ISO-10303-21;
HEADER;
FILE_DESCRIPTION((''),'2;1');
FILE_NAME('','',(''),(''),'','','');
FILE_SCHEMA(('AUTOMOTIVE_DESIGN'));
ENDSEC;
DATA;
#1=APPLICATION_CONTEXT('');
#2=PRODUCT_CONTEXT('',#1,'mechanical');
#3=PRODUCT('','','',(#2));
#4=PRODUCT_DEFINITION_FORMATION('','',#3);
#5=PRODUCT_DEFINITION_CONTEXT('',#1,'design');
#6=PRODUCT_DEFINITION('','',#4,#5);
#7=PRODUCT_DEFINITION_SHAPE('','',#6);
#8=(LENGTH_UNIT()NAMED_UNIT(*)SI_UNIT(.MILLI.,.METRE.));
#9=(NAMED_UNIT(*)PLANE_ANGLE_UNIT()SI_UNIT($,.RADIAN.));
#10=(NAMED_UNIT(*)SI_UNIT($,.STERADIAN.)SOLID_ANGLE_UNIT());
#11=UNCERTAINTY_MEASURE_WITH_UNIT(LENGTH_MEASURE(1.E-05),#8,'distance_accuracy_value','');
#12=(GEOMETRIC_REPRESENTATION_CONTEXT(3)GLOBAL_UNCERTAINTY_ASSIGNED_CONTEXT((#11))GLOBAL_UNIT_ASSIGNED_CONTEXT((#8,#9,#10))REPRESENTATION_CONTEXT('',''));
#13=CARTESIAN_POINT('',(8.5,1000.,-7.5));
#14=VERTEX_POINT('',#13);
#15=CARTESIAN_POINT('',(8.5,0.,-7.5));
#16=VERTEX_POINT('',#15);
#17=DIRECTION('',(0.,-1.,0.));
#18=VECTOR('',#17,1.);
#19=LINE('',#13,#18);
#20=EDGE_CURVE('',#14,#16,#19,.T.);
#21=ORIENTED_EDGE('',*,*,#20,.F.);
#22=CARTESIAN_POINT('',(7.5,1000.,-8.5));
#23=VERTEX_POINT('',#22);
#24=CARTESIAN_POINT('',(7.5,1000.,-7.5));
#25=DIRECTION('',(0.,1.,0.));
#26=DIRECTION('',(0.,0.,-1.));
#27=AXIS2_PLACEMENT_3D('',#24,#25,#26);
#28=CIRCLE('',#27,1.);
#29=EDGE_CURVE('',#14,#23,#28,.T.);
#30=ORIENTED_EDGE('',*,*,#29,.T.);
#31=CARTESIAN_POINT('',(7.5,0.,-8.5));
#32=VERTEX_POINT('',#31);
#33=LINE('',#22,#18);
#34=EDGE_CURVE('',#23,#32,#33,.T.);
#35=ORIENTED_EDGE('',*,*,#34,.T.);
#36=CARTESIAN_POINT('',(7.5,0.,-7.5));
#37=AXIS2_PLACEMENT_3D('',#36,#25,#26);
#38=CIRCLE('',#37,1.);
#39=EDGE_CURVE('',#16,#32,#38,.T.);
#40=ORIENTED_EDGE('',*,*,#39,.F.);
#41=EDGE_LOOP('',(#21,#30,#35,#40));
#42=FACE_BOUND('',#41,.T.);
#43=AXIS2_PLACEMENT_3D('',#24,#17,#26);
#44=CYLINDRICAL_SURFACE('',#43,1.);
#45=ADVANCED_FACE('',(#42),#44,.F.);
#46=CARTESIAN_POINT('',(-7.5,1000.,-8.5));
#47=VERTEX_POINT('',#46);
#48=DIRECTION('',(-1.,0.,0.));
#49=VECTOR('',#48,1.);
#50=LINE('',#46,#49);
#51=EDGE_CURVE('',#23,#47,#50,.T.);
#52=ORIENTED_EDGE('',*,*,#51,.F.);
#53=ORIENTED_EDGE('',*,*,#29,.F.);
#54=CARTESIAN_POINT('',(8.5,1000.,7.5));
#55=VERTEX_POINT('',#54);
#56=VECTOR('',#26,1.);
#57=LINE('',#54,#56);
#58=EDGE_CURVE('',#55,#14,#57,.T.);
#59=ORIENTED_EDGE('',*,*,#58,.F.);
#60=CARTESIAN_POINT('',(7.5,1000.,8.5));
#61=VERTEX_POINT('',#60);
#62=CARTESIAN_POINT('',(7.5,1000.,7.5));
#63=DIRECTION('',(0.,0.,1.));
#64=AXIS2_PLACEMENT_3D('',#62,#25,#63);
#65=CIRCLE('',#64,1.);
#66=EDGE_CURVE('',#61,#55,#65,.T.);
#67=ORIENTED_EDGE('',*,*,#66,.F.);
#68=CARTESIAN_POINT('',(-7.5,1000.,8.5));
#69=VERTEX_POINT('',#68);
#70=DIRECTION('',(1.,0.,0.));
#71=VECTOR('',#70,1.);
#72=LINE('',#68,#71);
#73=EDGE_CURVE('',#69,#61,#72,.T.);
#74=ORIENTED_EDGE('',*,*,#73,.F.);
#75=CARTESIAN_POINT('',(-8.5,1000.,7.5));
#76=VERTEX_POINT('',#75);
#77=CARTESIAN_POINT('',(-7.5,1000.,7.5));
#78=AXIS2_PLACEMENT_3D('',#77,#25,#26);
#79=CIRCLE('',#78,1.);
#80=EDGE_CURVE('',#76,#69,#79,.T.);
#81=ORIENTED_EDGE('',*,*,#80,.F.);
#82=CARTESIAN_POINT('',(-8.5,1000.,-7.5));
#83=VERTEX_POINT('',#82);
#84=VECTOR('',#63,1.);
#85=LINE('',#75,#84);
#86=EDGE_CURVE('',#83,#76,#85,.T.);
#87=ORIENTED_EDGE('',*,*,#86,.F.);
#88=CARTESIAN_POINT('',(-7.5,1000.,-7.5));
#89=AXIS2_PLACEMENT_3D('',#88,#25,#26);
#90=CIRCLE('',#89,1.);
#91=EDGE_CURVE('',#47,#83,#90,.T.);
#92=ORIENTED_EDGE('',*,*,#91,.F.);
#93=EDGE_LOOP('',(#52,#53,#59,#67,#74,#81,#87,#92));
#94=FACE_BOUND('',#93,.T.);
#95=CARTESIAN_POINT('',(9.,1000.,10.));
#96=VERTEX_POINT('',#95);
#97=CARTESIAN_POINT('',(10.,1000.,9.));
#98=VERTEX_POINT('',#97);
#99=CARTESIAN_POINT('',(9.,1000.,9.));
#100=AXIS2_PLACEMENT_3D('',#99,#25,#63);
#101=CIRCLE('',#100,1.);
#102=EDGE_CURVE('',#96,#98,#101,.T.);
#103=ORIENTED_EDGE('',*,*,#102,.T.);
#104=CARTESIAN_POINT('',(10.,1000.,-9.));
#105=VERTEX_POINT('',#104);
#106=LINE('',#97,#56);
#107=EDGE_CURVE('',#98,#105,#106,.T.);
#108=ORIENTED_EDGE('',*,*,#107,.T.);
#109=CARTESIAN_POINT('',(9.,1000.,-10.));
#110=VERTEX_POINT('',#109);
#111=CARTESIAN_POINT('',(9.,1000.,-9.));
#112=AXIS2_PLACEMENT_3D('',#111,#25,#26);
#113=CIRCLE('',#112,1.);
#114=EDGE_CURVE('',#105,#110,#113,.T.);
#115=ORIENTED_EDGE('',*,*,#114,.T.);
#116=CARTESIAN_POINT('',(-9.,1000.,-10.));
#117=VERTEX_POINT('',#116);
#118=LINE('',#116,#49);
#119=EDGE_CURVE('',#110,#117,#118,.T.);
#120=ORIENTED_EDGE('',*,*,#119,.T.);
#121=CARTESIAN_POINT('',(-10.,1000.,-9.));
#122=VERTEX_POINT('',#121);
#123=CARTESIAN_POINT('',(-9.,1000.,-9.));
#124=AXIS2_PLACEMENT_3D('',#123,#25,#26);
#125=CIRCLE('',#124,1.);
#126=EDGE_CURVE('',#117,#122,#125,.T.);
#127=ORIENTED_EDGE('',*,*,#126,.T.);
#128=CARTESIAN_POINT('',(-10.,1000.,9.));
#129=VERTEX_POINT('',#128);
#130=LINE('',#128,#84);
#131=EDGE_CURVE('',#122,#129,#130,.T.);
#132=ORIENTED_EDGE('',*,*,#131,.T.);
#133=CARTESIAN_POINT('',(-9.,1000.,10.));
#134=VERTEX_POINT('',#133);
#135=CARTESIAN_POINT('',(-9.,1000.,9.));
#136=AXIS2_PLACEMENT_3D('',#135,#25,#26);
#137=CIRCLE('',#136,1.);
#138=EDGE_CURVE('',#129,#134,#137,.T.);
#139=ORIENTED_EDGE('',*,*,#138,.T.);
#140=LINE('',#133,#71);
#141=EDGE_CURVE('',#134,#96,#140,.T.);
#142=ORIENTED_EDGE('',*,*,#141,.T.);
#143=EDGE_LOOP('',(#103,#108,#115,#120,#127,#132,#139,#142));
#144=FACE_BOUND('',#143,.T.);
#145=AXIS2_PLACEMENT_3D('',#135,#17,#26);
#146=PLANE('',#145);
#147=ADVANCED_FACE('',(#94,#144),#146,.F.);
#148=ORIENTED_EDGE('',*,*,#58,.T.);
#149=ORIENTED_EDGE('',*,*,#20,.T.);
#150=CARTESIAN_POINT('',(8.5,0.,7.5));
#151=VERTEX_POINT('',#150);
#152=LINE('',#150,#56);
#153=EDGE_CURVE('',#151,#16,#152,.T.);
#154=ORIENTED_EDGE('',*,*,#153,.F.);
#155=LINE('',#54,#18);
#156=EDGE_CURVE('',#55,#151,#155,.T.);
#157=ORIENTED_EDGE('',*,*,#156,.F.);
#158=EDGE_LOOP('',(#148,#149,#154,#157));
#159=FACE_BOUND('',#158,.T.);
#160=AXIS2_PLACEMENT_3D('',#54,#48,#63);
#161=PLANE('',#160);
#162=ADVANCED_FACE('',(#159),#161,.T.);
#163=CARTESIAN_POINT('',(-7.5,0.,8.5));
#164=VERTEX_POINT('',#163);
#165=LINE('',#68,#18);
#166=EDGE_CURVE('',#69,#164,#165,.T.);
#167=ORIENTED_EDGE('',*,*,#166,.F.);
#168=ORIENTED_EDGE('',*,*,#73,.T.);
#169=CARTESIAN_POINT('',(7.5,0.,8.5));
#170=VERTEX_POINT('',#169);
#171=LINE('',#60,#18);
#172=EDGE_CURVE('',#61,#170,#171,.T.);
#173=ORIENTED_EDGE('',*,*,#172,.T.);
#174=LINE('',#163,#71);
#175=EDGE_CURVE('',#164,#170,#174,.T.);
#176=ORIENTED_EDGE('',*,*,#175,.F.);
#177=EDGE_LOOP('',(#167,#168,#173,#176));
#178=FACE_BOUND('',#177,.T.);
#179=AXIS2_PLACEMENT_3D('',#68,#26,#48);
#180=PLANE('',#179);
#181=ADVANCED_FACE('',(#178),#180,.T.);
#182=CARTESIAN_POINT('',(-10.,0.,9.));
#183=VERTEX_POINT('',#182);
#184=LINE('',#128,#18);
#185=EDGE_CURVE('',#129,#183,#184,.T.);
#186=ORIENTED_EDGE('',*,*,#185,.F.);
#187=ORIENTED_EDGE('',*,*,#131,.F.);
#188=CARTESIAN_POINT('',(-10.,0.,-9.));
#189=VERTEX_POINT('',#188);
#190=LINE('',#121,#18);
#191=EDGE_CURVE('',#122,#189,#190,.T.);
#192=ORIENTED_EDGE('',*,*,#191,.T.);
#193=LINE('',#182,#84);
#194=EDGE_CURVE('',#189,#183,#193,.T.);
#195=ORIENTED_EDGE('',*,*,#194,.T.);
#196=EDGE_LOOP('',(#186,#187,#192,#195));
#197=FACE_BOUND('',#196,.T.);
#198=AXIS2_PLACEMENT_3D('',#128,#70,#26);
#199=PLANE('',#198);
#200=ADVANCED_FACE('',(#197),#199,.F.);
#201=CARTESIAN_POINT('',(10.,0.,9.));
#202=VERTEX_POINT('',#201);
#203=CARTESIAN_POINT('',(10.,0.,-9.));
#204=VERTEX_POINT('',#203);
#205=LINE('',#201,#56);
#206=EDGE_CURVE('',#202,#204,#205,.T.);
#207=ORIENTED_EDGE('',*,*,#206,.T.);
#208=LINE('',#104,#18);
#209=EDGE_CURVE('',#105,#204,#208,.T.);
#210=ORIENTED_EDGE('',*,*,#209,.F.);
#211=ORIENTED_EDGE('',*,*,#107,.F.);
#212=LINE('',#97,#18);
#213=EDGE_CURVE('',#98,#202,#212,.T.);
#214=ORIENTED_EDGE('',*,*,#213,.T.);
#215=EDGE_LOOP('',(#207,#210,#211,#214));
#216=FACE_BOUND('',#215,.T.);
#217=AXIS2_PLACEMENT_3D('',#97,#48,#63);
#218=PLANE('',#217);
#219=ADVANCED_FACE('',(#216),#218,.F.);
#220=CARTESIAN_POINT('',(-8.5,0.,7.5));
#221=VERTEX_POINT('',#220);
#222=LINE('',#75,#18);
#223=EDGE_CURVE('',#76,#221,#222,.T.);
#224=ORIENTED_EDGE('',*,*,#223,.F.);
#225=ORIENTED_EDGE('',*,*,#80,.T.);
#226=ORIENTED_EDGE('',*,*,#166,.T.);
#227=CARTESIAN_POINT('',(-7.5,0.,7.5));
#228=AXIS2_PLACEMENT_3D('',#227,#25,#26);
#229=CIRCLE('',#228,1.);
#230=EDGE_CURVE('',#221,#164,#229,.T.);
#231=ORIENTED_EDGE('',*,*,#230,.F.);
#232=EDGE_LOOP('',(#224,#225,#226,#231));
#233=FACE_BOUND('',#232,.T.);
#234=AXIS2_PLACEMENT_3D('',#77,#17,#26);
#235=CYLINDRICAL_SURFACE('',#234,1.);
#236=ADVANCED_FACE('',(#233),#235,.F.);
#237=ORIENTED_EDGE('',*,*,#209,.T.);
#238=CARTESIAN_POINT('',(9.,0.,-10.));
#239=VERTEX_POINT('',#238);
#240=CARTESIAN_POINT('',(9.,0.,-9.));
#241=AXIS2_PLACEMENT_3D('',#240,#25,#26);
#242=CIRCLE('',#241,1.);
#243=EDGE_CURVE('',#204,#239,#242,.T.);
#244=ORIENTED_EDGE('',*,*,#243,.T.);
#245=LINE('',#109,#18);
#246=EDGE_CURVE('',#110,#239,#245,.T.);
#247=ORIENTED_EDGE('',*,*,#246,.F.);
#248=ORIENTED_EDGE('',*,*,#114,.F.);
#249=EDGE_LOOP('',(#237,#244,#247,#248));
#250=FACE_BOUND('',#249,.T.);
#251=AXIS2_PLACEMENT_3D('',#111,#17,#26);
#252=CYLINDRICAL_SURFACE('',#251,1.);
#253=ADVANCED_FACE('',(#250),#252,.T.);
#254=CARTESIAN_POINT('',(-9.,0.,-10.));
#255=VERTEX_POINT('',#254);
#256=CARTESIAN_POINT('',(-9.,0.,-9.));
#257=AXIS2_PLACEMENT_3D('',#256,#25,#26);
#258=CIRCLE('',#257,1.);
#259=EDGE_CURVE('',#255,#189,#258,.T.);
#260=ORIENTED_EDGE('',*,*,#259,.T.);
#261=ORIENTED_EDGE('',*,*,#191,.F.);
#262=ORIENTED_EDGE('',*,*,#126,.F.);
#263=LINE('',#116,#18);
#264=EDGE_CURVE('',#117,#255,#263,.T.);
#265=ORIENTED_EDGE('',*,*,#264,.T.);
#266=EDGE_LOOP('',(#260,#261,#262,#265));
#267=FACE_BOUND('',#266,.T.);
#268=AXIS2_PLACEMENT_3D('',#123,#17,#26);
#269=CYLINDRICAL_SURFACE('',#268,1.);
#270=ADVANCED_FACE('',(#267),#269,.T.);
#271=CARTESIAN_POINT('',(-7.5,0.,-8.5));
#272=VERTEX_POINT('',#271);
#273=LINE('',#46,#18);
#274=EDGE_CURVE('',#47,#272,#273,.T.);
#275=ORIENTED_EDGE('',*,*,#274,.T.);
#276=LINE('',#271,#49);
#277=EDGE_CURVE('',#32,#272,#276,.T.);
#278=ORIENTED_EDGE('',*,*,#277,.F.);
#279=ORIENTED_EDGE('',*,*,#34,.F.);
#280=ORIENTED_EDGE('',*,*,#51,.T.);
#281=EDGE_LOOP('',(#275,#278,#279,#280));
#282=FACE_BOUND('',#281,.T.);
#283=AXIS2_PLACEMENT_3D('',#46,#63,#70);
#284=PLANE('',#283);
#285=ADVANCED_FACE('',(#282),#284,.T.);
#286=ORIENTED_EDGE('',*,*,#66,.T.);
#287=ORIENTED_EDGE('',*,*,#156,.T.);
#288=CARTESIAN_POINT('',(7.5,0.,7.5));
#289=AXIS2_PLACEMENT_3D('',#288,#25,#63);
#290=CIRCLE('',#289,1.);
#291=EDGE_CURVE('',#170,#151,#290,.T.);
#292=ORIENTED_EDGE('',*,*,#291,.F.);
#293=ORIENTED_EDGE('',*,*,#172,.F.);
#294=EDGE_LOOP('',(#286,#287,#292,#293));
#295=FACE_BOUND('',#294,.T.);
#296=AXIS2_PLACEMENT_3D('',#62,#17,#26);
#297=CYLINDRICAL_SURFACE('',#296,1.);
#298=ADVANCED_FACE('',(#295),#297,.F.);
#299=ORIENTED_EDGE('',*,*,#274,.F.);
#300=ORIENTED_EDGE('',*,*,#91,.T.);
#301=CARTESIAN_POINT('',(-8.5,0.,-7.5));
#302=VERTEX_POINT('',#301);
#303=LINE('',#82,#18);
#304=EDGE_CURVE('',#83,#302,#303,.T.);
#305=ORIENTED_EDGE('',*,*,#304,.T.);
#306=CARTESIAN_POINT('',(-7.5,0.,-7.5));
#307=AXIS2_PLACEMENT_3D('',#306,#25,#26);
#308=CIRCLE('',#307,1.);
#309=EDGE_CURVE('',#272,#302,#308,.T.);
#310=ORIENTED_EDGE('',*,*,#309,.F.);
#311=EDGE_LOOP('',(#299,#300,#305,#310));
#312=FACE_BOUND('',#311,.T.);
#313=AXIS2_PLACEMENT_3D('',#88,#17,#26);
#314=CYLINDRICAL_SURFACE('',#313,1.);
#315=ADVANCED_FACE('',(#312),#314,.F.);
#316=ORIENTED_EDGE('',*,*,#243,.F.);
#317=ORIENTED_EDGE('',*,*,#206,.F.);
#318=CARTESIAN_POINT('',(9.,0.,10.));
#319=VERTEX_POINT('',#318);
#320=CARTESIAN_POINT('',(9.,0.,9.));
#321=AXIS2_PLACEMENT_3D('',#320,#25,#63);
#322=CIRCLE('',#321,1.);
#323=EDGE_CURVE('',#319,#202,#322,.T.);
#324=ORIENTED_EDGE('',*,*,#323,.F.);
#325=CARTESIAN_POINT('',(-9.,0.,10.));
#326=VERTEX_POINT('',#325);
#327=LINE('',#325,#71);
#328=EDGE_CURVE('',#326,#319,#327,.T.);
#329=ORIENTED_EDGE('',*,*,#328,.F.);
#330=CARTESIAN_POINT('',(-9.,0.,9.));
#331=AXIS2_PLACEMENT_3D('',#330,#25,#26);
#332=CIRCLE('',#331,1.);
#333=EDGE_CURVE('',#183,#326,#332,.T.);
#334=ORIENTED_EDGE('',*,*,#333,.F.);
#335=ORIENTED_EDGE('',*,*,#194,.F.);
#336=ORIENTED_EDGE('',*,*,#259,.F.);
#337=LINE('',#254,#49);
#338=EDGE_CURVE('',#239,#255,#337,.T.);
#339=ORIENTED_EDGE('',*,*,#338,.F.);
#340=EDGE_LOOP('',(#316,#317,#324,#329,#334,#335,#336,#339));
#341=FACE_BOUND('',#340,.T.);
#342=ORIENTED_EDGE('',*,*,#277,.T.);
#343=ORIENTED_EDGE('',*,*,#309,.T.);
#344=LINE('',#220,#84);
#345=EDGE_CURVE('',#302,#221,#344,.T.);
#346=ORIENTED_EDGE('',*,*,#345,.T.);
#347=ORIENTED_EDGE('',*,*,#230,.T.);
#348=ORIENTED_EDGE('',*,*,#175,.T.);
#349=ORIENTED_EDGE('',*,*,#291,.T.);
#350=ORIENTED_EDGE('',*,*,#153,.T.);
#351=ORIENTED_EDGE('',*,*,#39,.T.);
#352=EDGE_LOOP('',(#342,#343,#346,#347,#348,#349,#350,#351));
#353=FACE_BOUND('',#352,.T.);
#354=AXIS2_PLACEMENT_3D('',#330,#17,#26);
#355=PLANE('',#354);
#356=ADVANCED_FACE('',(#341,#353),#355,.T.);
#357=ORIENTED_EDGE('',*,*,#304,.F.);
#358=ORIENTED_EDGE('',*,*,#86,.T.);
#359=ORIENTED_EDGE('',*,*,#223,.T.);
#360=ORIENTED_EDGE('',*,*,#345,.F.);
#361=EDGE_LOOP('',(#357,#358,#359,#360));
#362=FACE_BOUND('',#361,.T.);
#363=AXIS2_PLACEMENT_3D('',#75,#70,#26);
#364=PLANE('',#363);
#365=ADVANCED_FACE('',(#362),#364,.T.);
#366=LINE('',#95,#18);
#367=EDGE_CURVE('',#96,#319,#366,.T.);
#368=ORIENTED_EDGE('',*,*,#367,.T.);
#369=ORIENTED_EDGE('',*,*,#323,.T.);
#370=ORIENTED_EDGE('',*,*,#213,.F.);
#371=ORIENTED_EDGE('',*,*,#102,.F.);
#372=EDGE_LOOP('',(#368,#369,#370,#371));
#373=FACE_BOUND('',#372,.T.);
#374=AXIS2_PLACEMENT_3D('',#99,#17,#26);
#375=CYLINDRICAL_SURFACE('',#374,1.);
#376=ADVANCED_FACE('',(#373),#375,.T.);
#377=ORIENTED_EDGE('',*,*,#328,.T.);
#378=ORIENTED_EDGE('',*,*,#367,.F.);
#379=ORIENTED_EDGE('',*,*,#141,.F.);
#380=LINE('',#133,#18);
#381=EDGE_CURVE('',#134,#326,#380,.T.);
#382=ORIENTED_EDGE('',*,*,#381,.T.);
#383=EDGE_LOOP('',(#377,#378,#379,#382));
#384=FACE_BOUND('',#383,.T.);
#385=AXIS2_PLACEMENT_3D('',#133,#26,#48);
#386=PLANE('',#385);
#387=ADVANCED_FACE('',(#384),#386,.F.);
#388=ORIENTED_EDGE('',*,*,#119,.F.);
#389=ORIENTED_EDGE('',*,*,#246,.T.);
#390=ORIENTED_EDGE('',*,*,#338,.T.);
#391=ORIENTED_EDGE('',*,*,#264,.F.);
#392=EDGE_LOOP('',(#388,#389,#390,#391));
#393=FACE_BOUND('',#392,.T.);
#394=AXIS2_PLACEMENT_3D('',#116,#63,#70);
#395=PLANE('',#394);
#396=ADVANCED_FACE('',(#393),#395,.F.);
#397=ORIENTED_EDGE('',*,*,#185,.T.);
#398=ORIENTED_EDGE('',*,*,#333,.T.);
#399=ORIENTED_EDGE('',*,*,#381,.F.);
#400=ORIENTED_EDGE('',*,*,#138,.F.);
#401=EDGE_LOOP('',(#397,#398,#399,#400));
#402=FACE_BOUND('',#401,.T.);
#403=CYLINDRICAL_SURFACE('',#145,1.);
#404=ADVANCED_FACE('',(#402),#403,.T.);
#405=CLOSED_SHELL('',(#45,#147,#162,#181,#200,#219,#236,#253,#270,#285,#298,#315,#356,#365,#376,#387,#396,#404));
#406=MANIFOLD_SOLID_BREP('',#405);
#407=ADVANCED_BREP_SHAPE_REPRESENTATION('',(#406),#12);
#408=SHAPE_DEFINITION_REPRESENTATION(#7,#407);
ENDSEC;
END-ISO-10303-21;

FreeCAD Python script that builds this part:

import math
import FreeCAD as App
import Part
import Sketcher
from FreeCAD import Vector
Q = App.Units.Quantity

doc = App.newDocument("Part")
params = doc.addObject("Spreadsheet::Sheet", "Params")
for row, (alias, value) in enumerate([
    ("sketch1_radius", "1 mm"),
    ("sketch1_width", "18 mm"),
    ("sketch1_width2", "15 mm"),
    ("pad1_length", "1000 mm"),
], start=1):
    params.set(f"A{row}", alias)
    params.set(f"B{row}", "=" + value)
    params.setAlias(f"B{row}", alias)

body = doc.addObject("PartDesign::Body", "Body")

sketch1 = doc.addObject("Sketcher::SketchObject", "Sketch")
body.addObject(sketch1)
sketch1.AttachmentSupport = (doc.XZ_Plane, [""])
sketch1.MapMode = "FlatFace"
sketch1.addGeometry([
    Part.LineSegment(Vector(-9, 10, 0), Vector(9, 10, 0)),
    Part.ArcOfCircle(Part.Circle(Vector(9, 9, 0), Vector(0, 0, 1), 1), math.radians(0), math.radians(90)),
    Part.LineSegment(Vector(10, 9, 0), Vector(10, -9, 0)),
    Part.ArcOfCircle(Part.Circle(Vector(9, -9, 0), Vector(0, 0, 1), 1), math.radians(-90), math.radians(0)),
    Part.LineSegment(Vector(9, -10, 0), Vector(-9, -10, 0)),
    Part.ArcOfCircle(Part.Circle(Vector(-9, -9, 0), Vector(0, 0, 1), 1), math.radians(-180), math.radians(-90)),
    Part.LineSegment(Vector(-10, -9, 0), Vector(-10, 9, 0)),
    Part.ArcOfCircle(Part.Circle(Vector(-9, 9, 0), Vector(0, 0, 1), 1), math.radians(90), math.radians(180)),
    Part.LineSegment(Vector(7.5, 8.5, 0), Vector(-7.5, 8.5, 0)),
    Part.ArcOfCircle(Part.Circle(Vector(-7.5, 7.5, 0), Vector(0, 0, 1), 1), math.radians(90), math.radians(180)),
    Part.LineSegment(Vector(-8.5, 7.5, 0), Vector(-8.5, -7.5, 0)),
    Part.ArcOfCircle(Part.Circle(Vector(-7.5, -7.5, 0), Vector(0, 0, 1), 1), math.radians(-180), math.radians(-90)),
    Part.LineSegment(Vector(-7.5, -8.5, 0), Vector(7.5, -8.5, 0)),
    Part.ArcOfCircle(Part.Circle(Vector(7.5, -7.5, 0), Vector(0, 0, 1), 1), math.radians(-90), math.radians(0)),
    Part.LineSegment(Vector(8.5, -7.5, 0), Vector(8.5, 7.5, 0)),
    Part.ArcOfCircle(Part.Circle(Vector(7.5, 7.5, 0), Vector(0, 0, 1), 1), math.radians(0), math.radians(90)),
], False)
sketch1.addConstraint([
    Sketcher.Constraint("Tangent", 0, 2, 1, 2),
    Sketcher.Constraint("Tangent", 1, 1, 2, 1),
    Sketcher.Constraint("Tangent", 2, 2, 3, 2),
    Sketcher.Constraint("Tangent", 3, 1, 4, 1),
    Sketcher.Constraint("Tangent", 4, 2, 5, 2),
    Sketcher.Constraint("Tangent", 5, 1, 6, 1),
    Sketcher.Constraint("Tangent", 6, 2, 7, 2),
    Sketcher.Constraint("Tangent", 7, 1, 0, 1),
    Sketcher.Constraint("Tangent", 8, 2, 9, 1),
    Sketcher.Constraint("Tangent", 9, 2, 10, 1),
    Sketcher.Constraint("Tangent", 10, 2, 11, 1),
    Sketcher.Constraint("Tangent", 11, 2, 12, 1),
    Sketcher.Constraint("Tangent", 12, 2, 13, 1),
    Sketcher.Constraint("Tangent", 13, 2, 14, 1),
    Sketcher.Constraint("Tangent", 14, 2, 15, 1),
    Sketcher.Constraint("Tangent", 15, 2, 8, 1),
    Sketcher.Constraint("Horizontal", 0),
    Sketcher.Constraint("Vertical", 2),
    Sketcher.Constraint("Horizontal", 4),
    Sketcher.Constraint("Vertical", 6),
    Sketcher.Constraint("Horizontal", 8),
    Sketcher.Constraint("Vertical", 10),
    Sketcher.Constraint("Horizontal", 12),
    Sketcher.Constraint("Vertical", 14),
    Sketcher.Constraint("Equal", 1, 3),
    Sketcher.Constraint("Equal", 3, 5),
    Sketcher.Constraint("Equal", 5, 7),
    Sketcher.Constraint("Equal", 7, 9),
    Sketcher.Constraint("Equal", 9, 11),
    Sketcher.Constraint("Equal", 11, 13),
    Sketcher.Constraint("Equal", 13, 15),
    Sketcher.Constraint("Symmetric", 1, 3, 5, 3, -1, 1),
    Sketcher.Constraint("Symmetric", 9, 3, 13, 3, -1, 1),
    Sketcher.Constraint("Equal", 4, 2),
    Sketcher.Constraint("Equal", 12, 10),
    Sketcher.Constraint("Radius", 1, Q("1 mm")),
    Sketcher.Constraint("DistanceX", 0, 1, 0, 2, Q("18 mm")),
    Sketcher.Constraint("DistanceX", 8, 2, 8, 1, Q("15 mm")),
])
sketch1.setExpression("Constraints[35]", "Params.sketch1_radius")
sketch1.setExpression("Constraints[36]", "Params.sketch1_width")
sketch1.setExpression("Constraints[37]", "Params.sketch1_width2")
pad1 = doc.addObject("PartDesign::Pad", "Pad")
body.addObject(pad1)
pad1.Profile = sketch1
pad1.setExpression("Length", "Params.pad1_length")
pad1.Reversed = True

doc.recompute()
